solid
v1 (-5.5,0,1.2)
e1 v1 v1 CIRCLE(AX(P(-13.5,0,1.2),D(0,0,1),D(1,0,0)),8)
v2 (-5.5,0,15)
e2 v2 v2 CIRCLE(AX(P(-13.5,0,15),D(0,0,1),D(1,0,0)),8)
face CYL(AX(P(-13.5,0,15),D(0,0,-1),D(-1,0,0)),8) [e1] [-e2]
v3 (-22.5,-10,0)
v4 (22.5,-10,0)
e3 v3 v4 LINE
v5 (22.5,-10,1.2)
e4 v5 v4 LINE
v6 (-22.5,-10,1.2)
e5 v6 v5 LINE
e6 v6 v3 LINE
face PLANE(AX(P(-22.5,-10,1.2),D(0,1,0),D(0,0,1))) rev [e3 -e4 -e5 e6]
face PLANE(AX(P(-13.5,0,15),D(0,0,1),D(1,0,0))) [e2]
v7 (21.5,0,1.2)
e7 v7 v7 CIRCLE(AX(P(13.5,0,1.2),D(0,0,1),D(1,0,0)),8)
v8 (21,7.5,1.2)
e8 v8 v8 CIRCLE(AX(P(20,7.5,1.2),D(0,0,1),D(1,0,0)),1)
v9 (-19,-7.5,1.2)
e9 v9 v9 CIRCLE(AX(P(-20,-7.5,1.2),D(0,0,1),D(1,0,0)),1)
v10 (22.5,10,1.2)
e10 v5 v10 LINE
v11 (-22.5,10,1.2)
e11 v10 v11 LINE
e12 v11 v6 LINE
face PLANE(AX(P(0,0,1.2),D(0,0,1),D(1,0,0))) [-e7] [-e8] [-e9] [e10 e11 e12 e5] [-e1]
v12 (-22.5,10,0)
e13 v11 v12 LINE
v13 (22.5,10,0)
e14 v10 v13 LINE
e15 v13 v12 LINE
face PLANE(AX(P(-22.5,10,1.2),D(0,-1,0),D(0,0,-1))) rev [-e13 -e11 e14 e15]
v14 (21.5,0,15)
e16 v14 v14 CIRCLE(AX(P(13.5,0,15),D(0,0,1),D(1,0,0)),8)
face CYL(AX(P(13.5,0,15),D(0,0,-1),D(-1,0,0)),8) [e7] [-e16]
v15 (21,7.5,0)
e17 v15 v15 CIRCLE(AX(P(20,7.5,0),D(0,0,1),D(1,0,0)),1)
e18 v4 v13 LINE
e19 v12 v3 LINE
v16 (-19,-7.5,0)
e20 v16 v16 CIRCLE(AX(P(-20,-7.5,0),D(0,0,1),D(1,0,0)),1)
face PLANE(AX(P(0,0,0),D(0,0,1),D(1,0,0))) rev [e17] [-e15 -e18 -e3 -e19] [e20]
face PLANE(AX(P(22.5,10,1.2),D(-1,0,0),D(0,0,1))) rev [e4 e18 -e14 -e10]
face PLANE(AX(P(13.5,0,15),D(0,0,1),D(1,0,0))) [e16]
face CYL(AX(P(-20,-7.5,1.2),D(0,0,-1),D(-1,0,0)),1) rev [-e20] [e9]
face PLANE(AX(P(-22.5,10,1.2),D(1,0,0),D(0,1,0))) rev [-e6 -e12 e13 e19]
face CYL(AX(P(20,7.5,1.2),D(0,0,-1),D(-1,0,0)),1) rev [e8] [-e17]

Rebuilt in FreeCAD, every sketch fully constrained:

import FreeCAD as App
import Part
import Sketcher

V = App.Vector


def add_polygon(sketch, points):
    """Adds a closed chain of lines whose ends are joined by coincident constraints."""
    first, n = sketch.GeometryCount, len(points)
    for a, b in zip(points, points[1:] + points[:1]):
        sketch.addGeometry(Part.LineSegment(App.Vector(*a, 0), App.Vector(*b, 0)), False)
    for i in range(n):
        sketch.addConstraint(Sketcher.Constraint("Coincident", first + i, 2, first + (i + 1) % n, 1))

doc = App.newDocument("Part")
body = doc.addObject("PartDesign::Body", "Body")

# Sketch on XY plane
sketch1 = body.newObject("Sketcher::SketchObject", "Sketch")
sketch1.AttachmentSupport = (doc.getObject("XY_Plane"), [""])
sketch1.MapMode = "FlatFace"
add_polygon(sketch1, [(-22.5, 10), (-22.5, -10), (22.5, -10), (22.5, 10)])  # lines 0-3
sketch1.addGeometry(Part.Circle(V(-20, -7.5, 0), V(0, 0, 1), 1), False)  # 4
sketch1.addGeometry(Part.Circle(V(20, 7.5, 0), V(0, 0, 1), 1), False)  # 5
sketch1.addConstraint(Sketcher.Constraint("Vertical", 0))
sketch1.addConstraint(Sketcher.Constraint("Horizontal", 1))
sketch1.addConstraint(Sketcher.Constraint("Vertical", 2))
sketch1.addConstraint(Sketcher.Constraint("Horizontal", 3))
sketch1.addConstraint(Sketcher.Constraint("Equal", 4, 5))
sketch1.addConstraint(Sketcher.Constraint("Symmetric", 4, 3, 5, 3, -1, 1))
sketch1.addConstraint(Sketcher.Constraint("Symmetric", 0, 2, 2, 2, -1, 1))
sketch1.addConstraint(Sketcher.Constraint("Diameter", 4, 2.0))
sketch1.addConstraint(Sketcher.Constraint("DistanceX", 1, 1, 1, 2, 45.0))
sketch1.addConstraint(Sketcher.Constraint("DistanceY", 0, 2, 0, 1, 20.0))
sketch1.addConstraint(Sketcher.Constraint("DistanceX", 4, 3, -1, 1, 20.0))
sketch1.addConstraint(Sketcher.Constraint("DistanceY", 4, 3, 5, 3, 15.0))
pad1 = body.newObject("PartDesign::Pad", "Pad")
pad1.Profile = sketch1
pad1.Length = 1.2

# Sketch on XY plane
sketch2 = body.newObject("Sketcher::SketchObject", "Sketch001")
sketch2.AttachmentSupport = (doc.getObject("XY_Plane"), [""])
sketch2.MapMode = "FlatFace"
sketch2.AttachmentOffset = App.Placement(V(0, 0, 1.2), App.Rotation())
sketch2.addGeometry(Part.Circle(V(14, 0, 0), V(0, 0, 1), 8), False)
sketch2.addGeometry(Part.Circle(V(-14, 0, 0), V(0, 0, 1), 8), False)
sketch2.addConstraint(Sketcher.Constraint("Equal", 0, 1))
sketch2.addConstraint(Sketcher.Constraint("Symmetric", 0, 3, 1, 3, -1, 1))
sketch2.addConstraint(Sketcher.Constraint("PointOnObject", 0, 3, -1))
sketch2.addConstraint(Sketcher.Constraint("Diameter", 0, 16.0))
sketch2.addConstraint(Sketcher.Constraint("DistanceX", 1, 3, 0, 3, 27.0))
pad2 = body.newObject("PartDesign::Pad", "Pad001")
pad2.Profile = sketch2
pad2.Length = 13.8

doc.recompute()
